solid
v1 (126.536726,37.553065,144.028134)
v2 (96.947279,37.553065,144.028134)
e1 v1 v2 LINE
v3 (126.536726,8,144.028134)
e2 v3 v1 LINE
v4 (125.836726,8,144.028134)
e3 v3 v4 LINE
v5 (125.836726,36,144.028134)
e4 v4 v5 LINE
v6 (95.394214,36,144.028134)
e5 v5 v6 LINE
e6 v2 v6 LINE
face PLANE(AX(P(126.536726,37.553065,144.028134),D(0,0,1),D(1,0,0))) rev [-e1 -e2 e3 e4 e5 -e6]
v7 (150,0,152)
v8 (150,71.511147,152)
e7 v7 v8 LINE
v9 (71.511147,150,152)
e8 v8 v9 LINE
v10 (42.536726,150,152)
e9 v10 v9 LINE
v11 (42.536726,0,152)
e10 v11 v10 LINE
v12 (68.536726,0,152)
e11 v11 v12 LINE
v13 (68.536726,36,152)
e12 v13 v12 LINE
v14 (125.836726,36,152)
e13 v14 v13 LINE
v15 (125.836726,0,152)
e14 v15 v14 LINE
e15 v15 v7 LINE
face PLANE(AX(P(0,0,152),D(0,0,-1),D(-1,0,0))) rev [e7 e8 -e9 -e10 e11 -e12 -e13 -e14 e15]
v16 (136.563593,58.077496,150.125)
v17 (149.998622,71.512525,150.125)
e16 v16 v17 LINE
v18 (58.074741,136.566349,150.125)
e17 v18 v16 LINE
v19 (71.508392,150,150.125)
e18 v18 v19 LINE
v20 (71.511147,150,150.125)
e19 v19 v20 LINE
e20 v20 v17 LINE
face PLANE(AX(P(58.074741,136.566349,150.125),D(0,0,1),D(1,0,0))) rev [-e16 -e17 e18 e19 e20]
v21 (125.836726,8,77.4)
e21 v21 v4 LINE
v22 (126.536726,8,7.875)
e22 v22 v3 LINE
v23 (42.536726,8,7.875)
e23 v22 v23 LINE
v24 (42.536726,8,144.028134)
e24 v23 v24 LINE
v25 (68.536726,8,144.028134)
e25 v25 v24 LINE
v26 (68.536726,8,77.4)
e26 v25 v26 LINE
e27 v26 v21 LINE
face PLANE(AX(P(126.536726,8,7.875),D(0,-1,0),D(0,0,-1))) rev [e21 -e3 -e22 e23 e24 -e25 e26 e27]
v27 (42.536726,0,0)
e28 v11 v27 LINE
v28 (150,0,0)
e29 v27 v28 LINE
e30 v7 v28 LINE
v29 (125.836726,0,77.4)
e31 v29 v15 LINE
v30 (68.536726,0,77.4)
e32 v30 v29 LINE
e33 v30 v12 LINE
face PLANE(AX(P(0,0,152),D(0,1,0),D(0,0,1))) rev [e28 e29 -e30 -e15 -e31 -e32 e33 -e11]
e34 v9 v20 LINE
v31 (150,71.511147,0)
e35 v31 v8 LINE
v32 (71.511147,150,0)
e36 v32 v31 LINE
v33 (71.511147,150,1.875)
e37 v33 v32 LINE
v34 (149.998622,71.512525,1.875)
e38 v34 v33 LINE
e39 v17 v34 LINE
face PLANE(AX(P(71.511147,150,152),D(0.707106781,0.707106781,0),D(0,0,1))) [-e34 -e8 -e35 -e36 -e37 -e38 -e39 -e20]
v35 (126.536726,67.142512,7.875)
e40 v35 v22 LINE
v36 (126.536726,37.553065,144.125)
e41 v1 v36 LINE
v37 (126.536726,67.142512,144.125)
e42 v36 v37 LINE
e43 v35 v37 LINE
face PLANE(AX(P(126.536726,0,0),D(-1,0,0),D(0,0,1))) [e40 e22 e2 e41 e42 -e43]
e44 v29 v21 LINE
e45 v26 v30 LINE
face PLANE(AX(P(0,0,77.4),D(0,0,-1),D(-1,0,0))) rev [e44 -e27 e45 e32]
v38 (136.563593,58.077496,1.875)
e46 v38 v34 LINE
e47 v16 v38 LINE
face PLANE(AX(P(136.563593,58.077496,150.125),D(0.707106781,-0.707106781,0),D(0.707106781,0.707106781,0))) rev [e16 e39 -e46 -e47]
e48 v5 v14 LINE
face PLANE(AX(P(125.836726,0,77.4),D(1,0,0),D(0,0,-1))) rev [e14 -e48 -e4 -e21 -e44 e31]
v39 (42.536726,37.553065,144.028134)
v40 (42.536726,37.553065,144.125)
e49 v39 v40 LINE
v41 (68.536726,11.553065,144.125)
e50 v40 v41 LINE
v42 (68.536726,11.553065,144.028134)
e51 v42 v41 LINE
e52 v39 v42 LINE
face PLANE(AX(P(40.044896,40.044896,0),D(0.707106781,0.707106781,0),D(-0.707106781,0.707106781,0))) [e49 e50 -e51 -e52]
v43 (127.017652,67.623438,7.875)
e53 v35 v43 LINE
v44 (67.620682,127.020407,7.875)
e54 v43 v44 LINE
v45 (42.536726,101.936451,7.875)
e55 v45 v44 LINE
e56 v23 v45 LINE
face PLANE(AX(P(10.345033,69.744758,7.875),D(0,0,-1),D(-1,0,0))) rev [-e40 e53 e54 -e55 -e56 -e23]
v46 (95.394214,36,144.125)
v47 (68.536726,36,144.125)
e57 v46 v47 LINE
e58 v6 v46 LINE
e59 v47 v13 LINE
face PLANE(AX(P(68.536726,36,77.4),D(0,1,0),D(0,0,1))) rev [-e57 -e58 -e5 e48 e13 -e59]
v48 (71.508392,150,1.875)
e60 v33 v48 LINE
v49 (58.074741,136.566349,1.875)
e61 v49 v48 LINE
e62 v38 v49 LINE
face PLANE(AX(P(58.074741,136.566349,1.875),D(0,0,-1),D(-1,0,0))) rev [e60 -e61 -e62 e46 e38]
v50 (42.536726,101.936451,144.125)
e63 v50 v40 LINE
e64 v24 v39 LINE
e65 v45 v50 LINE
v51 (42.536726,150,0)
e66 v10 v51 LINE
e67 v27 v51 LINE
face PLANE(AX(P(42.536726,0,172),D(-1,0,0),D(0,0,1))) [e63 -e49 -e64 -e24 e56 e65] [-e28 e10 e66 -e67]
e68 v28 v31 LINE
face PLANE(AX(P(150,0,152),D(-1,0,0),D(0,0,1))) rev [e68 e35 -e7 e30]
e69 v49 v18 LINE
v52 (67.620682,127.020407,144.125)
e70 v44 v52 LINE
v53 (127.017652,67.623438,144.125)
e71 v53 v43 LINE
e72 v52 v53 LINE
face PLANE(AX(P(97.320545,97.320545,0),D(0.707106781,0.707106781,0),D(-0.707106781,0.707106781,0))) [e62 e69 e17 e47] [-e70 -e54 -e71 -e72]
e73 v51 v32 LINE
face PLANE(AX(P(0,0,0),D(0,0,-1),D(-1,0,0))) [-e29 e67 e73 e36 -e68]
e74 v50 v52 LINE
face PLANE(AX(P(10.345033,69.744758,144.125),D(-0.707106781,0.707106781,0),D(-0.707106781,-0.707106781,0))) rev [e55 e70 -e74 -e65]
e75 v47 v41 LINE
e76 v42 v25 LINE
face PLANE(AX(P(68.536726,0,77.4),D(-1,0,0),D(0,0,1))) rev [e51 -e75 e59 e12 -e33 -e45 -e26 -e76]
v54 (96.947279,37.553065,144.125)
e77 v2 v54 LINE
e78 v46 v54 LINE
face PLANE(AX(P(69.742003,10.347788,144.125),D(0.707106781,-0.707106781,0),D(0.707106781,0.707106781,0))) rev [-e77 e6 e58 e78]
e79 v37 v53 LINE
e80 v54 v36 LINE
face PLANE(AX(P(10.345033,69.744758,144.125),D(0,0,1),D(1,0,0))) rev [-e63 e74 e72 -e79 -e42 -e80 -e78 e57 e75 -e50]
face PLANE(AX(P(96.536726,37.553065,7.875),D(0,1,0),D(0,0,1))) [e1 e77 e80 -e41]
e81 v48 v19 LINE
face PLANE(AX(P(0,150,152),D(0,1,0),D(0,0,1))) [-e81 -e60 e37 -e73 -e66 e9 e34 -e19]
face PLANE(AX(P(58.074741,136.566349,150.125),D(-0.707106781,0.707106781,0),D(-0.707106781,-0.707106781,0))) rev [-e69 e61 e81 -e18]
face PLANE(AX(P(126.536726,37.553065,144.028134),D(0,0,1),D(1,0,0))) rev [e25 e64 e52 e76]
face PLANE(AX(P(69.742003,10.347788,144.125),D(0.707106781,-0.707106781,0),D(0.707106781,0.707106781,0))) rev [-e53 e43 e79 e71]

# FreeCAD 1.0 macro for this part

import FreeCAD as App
import Part
import Sketcher
from FreeCAD import Vector


def edges_at(feature, points):
    """Names of the edges that pass closest to the given points."""
    edges = feature.Shape.Edges
    near = lambda p: min(range(len(edges)), key=lambda i: edges[i].distToShape(Part.Vertex(*p))[0])
    return sorted({f"Edge{near(p) + 1}" for p in points})

doc = App.newDocument("Part")
params = doc.addObject("Spreadsheet::Sheet", "Params")
for row, (alias, value) in enumerate([
    ("sketch1_width", "150 mm"),
    ("pad1_length", "152 mm"),
    ("chamfer_size", "78.488853 mm"),
    ("sketch2_height", "111 mm"),
    ("sketch2_width", "148.25 mm"),
    ("pocket1_length", "19 mm"),
    ("sketch3_height", "84 mm"),
    ("sketch3_width", "136.25 mm"),
    ("pocket2_length", "81 mm"),
    ("sketch4_height", "150 mm"),
    ("pocket4_length", "84 mm"),
    ("sketch6_height", "136.25 mm"),
    ("pocket5_length", "30 mm"),
    ("sketch7_height", "36 mm"),
    ("sketch7_width", "57.3 mm"),
    ("pocket6_length", "74.6 mm"),
], start=1):
    params.set(f"A{row}", alias)
    params.set(f"B{row}", "=" + value)
    params.setAlias(f"B{row}", alias)

body = doc.addObject("PartDesign::Body", "Body")

# Sketch on XY plane
sketch1 = body.newObject("Sketcher::SketchObject", "Sketch")
sketch1.AttachmentSupport = (doc.getObject("XY_Plane"), [""])
sketch1.MapMode = "FlatFace"
sketch1.addGeometry([
    Part.LineSegment(Vector(0, 150, 0), Vector(0, 0, 0)),
    Part.LineSegment(Vector(0, 0, 0), Vector(150, 0, 0)),
    Part.LineSegment(Vector(150, 0, 0), Vector(150, 150, 0)),
    Part.LineSegment(Vector(150, 150, 0), Vector(0, 150, 0)),
], False)
sketch1.addConstraint([
    Sketcher.Constraint("Coincident", 0, 2, 1, 1),
    Sketcher.Constraint("Coincident", 1, 2, 2, 1),
    Sketcher.Constraint("Coincident", 2, 2, 3, 1),
    Sketcher.Constraint("Coincident", 3, 2, 0, 1),
    Sketcher.Constraint("Vertical", 0),
    Sketcher.Constraint("Horizontal", 1),
    Sketcher.Constraint("Vertical", 2),
    Sketcher.Constraint("Horizontal", 3),
    Sketcher.Constraint("Coincident", 0, 2, -1, 1),
    Sketcher.Constraint("Equal", 3, 0),
    Sketcher.Constraint("DistanceX", 1, 1, 1, 2, 150.0),
])
sketch1.setExpression("Constraints[10]", "Params.sketch1_width")
pad1 = body.newObject("PartDesign::Pad", "Pad")
pad1.Profile = sketch1
pad1.setExpression("Length", "Params.pad1_length")
doc.recompute()

chamfer = body.newObject("PartDesign::Chamfer", "Chamfer")
chamfer.Base = (pad1, edges_at(pad1, [(150, 150, 76)]))
chamfer.setExpression("Size", "Params.chamfer_size")

# Sketch on an angled plane
sketch2 = body.newObject("Sketcher::SketchObject", "Sketch001")
sketch2.Placement = App.Placement(Vector(110.755574, 110.755574, 0), App.Rotation(Vector(0, 0, -1), Vector(-0.707106781, 0.707106781, 0), Vector(0.707106781, 0.707106781, 0), "ZXY"))
sketch2.addGeometry([
    Part.LineSegment(Vector(-150.125, 55.501948, 0), Vector(-150.125, -55.498052, 0)),
    Part.LineSegment(Vector(-150.125, -55.498052, 0), Vector(-1.875, -55.498052, 0)),
    Part.LineSegment(Vector(-1.875, -55.498052, 0), Vector(-1.875, 55.501948, 0)),
    Part.LineSegment(Vector(-1.875, 55.501948, 0), Vector(-150.125, 55.501948, 0)),
], False)
sketch2.addConstraint([
    Sketcher.Constraint("Coincident", 0, 2, 1, 1),
    Sketcher.Constraint("Coincident", 1, 2, 2, 1),
    Sketcher.Constraint("Coincident", 2, 2, 3, 1),
    Sketcher.Constraint("Coincident", 3, 2, 0, 1),
    Sketcher.Constraint("Vertical", 0),
    Sketcher.Constraint("Horizontal", 1),
    Sketcher.Constraint("Vertical", 2),
    Sketcher.Constraint("Horizontal", 3),
    Sketcher.Constraint("DistanceY", 0, 2, 0, 1, 111.0),
    Sketcher.Constraint("DistanceX", 1, 1, 1, 2, 148.25),
    Sketcher.Constraint("DistanceX", 0, 2, -1, 1, 150.125),
    Sketcher.Constraint("DistanceY", 0, 2, -1, 1, 55.498052),
])
sketch2.setExpression("Constraints[8]", "Params.sketch2_height")
sketch2.setExpression("Constraints[9]", "Params.sketch2_width")
pocket1 = body.newObject("PartDesign::Pocket", "Pocket")
pocket1.Profile = sketch2
pocket1.setExpression("Length", "Params.pocket1_length")

# Sketch on an angled plane
sketch3 = body.newObject("Sketcher::SketchObject", "Sketch002")
sketch3.Placement = App.Placement(Vector(97.320545, 97.320545, 0), App.Rotation(Vector(0, 0, -1), Vector(-0.707106781, 0.707106781, 0), Vector(0.707106781, 0.707106781, 0), "ZXY"))
sketch3.addGeometry([
    Part.LineSegment(Vector(-144.125, 42.001948, 0), Vector(-144.125, -41.998052, 0)),
    Part.LineSegment(Vector(-144.125, -41.998052, 0), Vector(-7.875, -41.998052, 0)),
    Part.LineSegment(Vector(-7.875, -41.998052, 0), Vector(-7.875, 42.001948, 0)),
    Part.LineSegment(Vector(-7.875, 42.001948, 0), Vector(-144.125, 42.001948, 0)),
], False)
sketch3.addConstraint([
    Sketcher.Constraint("Coincident", 0, 2, 1, 1),
    Sketcher.Constraint("Coincident", 1, 2, 2, 1),
    Sketcher.Constraint("Coincident", 2, 2, 3, 1),
    Sketcher.Constraint("Coincident", 3, 2, 0, 1),
    Sketcher.Constraint("Vertical", 0),
    Sketcher.Constraint("Horizontal", 1),
    Sketcher.Constraint("Vertical", 2),
    Sketcher.Constraint("Horizontal", 3),
    Sketcher.Constraint("DistanceY", 0, 2, 0, 1, 84.0),
    Sketcher.Constraint("DistanceX", 1, 1, 1, 2, 136.25),
    Sketcher.Constraint("DistanceX", 0, 2, -1, 1, 144.125),
    Sketcher.Constraint("DistanceY", 0, 2, -1, 1, 41.998052),
])
sketch3.setExpression("Constraints[8]", "Params.sketch3_height")
sketch3.setExpression("Constraints[9]", "Params.sketch3_width")
pocket2 = body.newObject("PartDesign::Pocket", "Pocket001")
pocket2.Profile = sketch3
pocket2.setExpression("Length", "Params.pocket2_length")

# Sketch on XY plane
sketch4 = body.newObject("Sketcher::SketchObject", "Sketch003")
sketch4.AttachmentSupport = (doc.getObject("XY_Plane"), [""])
sketch4.MapMode = "FlatFace"
sketch4.AttachmentOffset = App.Placement(Vector(0, 0, 152), App.Rotation())
sketch4.addGeometry([
    Part.LineSegment(Vector(0, 150, 0), Vector(0, 0, 0)),
    Part.LineSegment(Vector(0, 0, 0), Vector(42.536726, 0, 0)),
    Part.LineSegment(Vector(42.536726, 0, 0), Vector(42.536726, 150, 0)),
    Part.LineSegment(Vector(42.536726, 150, 0), Vector(0, 150, 0)),
], False)
sketch4.addConstraint([
    Sketcher.Constraint("Coincident", 0, 2, 1, 1),
    Sketcher.Constraint("Coincident", 1, 2, 2, 1),
    Sketcher.Constraint("Coincident", 2, 2, 3, 1),
    Sketcher.Constraint("Coincident", 3, 2, 0, 1),
    Sketcher.Constraint("Vertical", 0),
    Sketcher.Constraint("Horizontal", 1),
    Sketcher.Constraint("Vertical", 2),
    Sketcher.Constraint("Horizontal", 3),
    Sketcher.Constraint("Coincident", 0, 2, -1, 1),
    Sketcher.Constraint("DistanceY", 0, 2, 0, 1, 150.0),
    Sketcher.Constraint("DistanceX", 1, 1, 1, 2, 42.536726),
])
sketch4.setExpression("Constraints[9]", "Params.sketch4_height")
pocket3 = body.newObject("PartDesign::Pocket", "Pocket002")
pocket3.Profile = sketch4
pocket3.Type = "ThroughAll"
pocket3.Midplane = True

# Sketch on YZ plane
sketch5 = body.newObject("Sketcher::SketchObject", "Sketch004")
sketch5.AttachmentSupport = (doc.getObject("YZ_Plane"), [""])
sketch5.MapMode = "FlatFace"
sketch5.AttachmentOffset = App.Placement(Vector(0, 0, 42.536726), App.Rotation())
sketch5.addGeometry([
    Part.LineSegment(Vector(37.553065, 7.875, 0), Vector(8, 7.875, 0)),
    Part.LineSegment(Vector(8, 7.875, 0), Vector(8, 144.028134, 0)),
    Part.LineSegment(Vector(8, 144.028134, 0), Vector(37.553065, 144.028134, 0)),
    Part.LineSegment(Vector(37.553065, 144.028134, 0), Vector(37.553065, 7.875, 0)),
], False)
sketch5.addConstraint([
    Sketcher.Constraint("Coincident", 0, 2, 1, 1),
    Sketcher.Constraint("Coincident", 1, 2, 2, 1),
    Sketcher.Constraint("Coincident", 2, 2, 3, 1),
    Sketcher.Constraint("Coincident", 3, 2, 0, 1),
    Sketcher.Constraint("Horizontal", 0),
    Sketcher.Constraint("Vertical", 1),
    Sketcher.Constraint("Horizontal", 2),
    Sketcher.Constraint("Vertical", 3),
    Sketcher.Constraint("DistanceX", -1, 1, 0, 2, 8.0),
    Sketcher.Constraint("DistanceY", -1, 1, 0, 2, 7.875),
    Sketcher.Constraint("DistanceX", 0, 2, 0, 1, 29.553065),
    Sketcher.Constraint("DistanceY", 1, 1, 1, 2, 136.153134),
])
pocket4 = body.newObject("PartDesign::Pocket", "Pocket003")
pocket4.Profile = sketch5
pocket4.setExpression("Length", "Params.pocket4_length")
pocket4.Reversed = True

# Sketch on YZ plane
sketch6 = body.newObject("Sketcher::SketchObject", "Sketch005")
sketch6.AttachmentSupport = (doc.getObject("YZ_Plane"), [""])
sketch6.MapMode = "FlatFace"
sketch6.AttachmentOffset = App.Placement(Vector(0, 0, 126.536726), App.Rotation())
sketch6.addGeometry([
    Part.LineSegment(Vector(67.623438, 7.875, 0), Vector(37.553065, 7.875, 0)),
    Part.LineSegment(Vector(37.553065, 7.875, 0), Vector(37.553065, 144.125, 0)),
    Part.LineSegment(Vector(37.553065, 144.125, 0), Vector(67.623438, 144.125, 0)),
    Part.LineSegment(Vector(67.623438, 144.125, 0), Vector(67.623438, 7.875, 0)),
], False)
sketch6.addConstraint([
    Sketcher.Constraint("Coincident", 0, 2, 1, 1),
    Sketcher.Constraint("Coincident", 1, 2, 2, 1),
    Sketcher.Constraint("Coincident", 2, 2, 3, 1),
    Sketcher.Constraint("Coincident", 3, 2, 0, 1),
    Sketcher.Constraint("Horizontal", 0),
    Sketcher.Constraint("Vertical", 1),
    Sketcher.Constraint("Horizontal", 2),
    Sketcher.Constraint("Vertical", 3),
    Sketcher.Constraint("DistanceY", 1, 1, 1, 2, 136.25),
    Sketcher.Constraint("DistanceY", -1, 1, 0, 2, 7.875),
    Sketcher.Constraint("DistanceX", 0, 2, 0, 1, 30.070373),
    Sketcher.Constraint("DistanceX", -1, 1, 0, 2, 37.553065),
])
sketch6.setExpression("Constraints[8]", "Params.sketch6_height")
pocket5 = body.newObject("PartDesign::Pocket", "Pocket004")
pocket5.Profile = sketch6
pocket5.setExpression("Length", "Params.pocket5_length")

# Sketch on XY plane
sketch7 = body.newObject("Sketcher::SketchObject", "Sketch006")
sketch7.AttachmentSupport = (doc.getObject("XY_Plane"), [""])
sketch7.MapMode = "FlatFace"
sketch7.AttachmentOffset = App.Placement(Vector(0, 0, 152), App.Rotation())
sketch7.addGeometry([
    Part.LineSegment(Vector(68.536726, 36, 0), Vector(68.536726, 0, 0)),
    Part.LineSegment(Vector(68.536726, 0, 0), Vector(125.836726, 0, 0)),
    Part.LineSegment(Vector(125.836726, 0, 0), Vector(125.836726, 36, 0)),
    Part.LineSegment(Vector(125.836726, 36, 0), Vector(68.536726, 36, 0)),
], False)
sketch7.addConstraint([
    Sketcher.Constraint("Coincident", 0, 2, 1, 1),
    Sketcher.Constraint("Coincident", 1, 2, 2, 1),
    Sketcher.Constraint("Coincident", 2, 2, 3, 1),
    Sketcher.Constraint("Coincident", 3, 2, 0, 1),
    Sketcher.Constraint("Vertical", 0),
    Sketcher.Constraint("Horizontal", 1),
    Sketcher.Constraint("Vertical", 2),
    Sketcher.Constraint("Horizontal", 3),
    Sketcher.Constraint("PointOnObject", 0, 2, -1),
    Sketcher.Constraint("DistanceY", 0, 2, 0, 1, 36.0),
    Sketcher.Constraint("DistanceX", 1, 1, 1, 2, 57.3),
    Sketcher.Constraint("DistanceX", -1, 1, 0, 2, 68.536726),
])
sketch7.setExpression("Constraints[9]", "Params.sketch7_height")
sketch7.setExpression("Constraints[10]", "Params.sketch7_width")
pocket6 = body.newObject("PartDesign::Pocket", "Pocket005")
pocket6.Profile = sketch7
pocket6.setExpression("Length", "Params.pocket6_length")

doc.recompute()
